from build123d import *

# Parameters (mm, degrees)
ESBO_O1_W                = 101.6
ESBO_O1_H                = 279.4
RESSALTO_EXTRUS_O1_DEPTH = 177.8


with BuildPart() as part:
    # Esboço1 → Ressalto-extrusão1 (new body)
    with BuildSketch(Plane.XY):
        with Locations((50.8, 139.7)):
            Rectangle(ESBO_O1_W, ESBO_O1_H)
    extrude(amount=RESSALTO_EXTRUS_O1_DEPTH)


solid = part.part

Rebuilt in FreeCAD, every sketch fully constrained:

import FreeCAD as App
import Part
import Sketcher
from FreeCAD import Vector
Q = App.Units.Quantity


def add_polygon(sketch, points):
    """Adds a closed chain of lines whose ends are joined by coincident constraints."""
    first, n = sketch.GeometryCount, len(points)
    for a, b in zip(points, points[1:] + points[:1]):
        sketch.addGeometry(Part.LineSegment(App.Vector(*a, 0), App.Vector(*b, 0)), False)
    for i in range(n):
        sketch.addConstraint(Sketcher.Constraint("Coincident", first + i, 2, first + (i + 1) % n, 1))

doc = App.newDocument("Part")
body = doc.addObject("PartDesign::Body", "Body")

sketch1 = body.newObject("Sketcher::SketchObject", "Sketch")
sketch1.AttachmentSupport = (doc.getObject("XY_Plane"), [""])
sketch1.MapMode = "FlatFace"
add_polygon(sketch1, [(0, 279), (0, 0), (102, 0), (102, 279)])
sketch1.addConstraint(Sketcher.Constraint("Vertical", 0))
sketch1.addConstraint(Sketcher.Constraint("Horizontal", 1))
sketch1.addConstraint(Sketcher.Constraint("Vertical", 2))
sketch1.addConstraint(Sketcher.Constraint("Horizontal", 3))
sketch1.addConstraint(Sketcher.Constraint("Coincident", 0, 2, -1, 1))
sketch1.addConstraint(Sketcher.Constraint("DistanceX", 1, 1, 1, 2, Q("4 in")))
sketch1.addConstraint(Sketcher.Constraint("DistanceY", 0, 2, 0, 1, Q("11 in")))
pad1 = body.newObject("PartDesign::Pad", "Pad")
pad1.Profile = sketch1
pad1.Length = Q("7 in")

doc.recompute()
